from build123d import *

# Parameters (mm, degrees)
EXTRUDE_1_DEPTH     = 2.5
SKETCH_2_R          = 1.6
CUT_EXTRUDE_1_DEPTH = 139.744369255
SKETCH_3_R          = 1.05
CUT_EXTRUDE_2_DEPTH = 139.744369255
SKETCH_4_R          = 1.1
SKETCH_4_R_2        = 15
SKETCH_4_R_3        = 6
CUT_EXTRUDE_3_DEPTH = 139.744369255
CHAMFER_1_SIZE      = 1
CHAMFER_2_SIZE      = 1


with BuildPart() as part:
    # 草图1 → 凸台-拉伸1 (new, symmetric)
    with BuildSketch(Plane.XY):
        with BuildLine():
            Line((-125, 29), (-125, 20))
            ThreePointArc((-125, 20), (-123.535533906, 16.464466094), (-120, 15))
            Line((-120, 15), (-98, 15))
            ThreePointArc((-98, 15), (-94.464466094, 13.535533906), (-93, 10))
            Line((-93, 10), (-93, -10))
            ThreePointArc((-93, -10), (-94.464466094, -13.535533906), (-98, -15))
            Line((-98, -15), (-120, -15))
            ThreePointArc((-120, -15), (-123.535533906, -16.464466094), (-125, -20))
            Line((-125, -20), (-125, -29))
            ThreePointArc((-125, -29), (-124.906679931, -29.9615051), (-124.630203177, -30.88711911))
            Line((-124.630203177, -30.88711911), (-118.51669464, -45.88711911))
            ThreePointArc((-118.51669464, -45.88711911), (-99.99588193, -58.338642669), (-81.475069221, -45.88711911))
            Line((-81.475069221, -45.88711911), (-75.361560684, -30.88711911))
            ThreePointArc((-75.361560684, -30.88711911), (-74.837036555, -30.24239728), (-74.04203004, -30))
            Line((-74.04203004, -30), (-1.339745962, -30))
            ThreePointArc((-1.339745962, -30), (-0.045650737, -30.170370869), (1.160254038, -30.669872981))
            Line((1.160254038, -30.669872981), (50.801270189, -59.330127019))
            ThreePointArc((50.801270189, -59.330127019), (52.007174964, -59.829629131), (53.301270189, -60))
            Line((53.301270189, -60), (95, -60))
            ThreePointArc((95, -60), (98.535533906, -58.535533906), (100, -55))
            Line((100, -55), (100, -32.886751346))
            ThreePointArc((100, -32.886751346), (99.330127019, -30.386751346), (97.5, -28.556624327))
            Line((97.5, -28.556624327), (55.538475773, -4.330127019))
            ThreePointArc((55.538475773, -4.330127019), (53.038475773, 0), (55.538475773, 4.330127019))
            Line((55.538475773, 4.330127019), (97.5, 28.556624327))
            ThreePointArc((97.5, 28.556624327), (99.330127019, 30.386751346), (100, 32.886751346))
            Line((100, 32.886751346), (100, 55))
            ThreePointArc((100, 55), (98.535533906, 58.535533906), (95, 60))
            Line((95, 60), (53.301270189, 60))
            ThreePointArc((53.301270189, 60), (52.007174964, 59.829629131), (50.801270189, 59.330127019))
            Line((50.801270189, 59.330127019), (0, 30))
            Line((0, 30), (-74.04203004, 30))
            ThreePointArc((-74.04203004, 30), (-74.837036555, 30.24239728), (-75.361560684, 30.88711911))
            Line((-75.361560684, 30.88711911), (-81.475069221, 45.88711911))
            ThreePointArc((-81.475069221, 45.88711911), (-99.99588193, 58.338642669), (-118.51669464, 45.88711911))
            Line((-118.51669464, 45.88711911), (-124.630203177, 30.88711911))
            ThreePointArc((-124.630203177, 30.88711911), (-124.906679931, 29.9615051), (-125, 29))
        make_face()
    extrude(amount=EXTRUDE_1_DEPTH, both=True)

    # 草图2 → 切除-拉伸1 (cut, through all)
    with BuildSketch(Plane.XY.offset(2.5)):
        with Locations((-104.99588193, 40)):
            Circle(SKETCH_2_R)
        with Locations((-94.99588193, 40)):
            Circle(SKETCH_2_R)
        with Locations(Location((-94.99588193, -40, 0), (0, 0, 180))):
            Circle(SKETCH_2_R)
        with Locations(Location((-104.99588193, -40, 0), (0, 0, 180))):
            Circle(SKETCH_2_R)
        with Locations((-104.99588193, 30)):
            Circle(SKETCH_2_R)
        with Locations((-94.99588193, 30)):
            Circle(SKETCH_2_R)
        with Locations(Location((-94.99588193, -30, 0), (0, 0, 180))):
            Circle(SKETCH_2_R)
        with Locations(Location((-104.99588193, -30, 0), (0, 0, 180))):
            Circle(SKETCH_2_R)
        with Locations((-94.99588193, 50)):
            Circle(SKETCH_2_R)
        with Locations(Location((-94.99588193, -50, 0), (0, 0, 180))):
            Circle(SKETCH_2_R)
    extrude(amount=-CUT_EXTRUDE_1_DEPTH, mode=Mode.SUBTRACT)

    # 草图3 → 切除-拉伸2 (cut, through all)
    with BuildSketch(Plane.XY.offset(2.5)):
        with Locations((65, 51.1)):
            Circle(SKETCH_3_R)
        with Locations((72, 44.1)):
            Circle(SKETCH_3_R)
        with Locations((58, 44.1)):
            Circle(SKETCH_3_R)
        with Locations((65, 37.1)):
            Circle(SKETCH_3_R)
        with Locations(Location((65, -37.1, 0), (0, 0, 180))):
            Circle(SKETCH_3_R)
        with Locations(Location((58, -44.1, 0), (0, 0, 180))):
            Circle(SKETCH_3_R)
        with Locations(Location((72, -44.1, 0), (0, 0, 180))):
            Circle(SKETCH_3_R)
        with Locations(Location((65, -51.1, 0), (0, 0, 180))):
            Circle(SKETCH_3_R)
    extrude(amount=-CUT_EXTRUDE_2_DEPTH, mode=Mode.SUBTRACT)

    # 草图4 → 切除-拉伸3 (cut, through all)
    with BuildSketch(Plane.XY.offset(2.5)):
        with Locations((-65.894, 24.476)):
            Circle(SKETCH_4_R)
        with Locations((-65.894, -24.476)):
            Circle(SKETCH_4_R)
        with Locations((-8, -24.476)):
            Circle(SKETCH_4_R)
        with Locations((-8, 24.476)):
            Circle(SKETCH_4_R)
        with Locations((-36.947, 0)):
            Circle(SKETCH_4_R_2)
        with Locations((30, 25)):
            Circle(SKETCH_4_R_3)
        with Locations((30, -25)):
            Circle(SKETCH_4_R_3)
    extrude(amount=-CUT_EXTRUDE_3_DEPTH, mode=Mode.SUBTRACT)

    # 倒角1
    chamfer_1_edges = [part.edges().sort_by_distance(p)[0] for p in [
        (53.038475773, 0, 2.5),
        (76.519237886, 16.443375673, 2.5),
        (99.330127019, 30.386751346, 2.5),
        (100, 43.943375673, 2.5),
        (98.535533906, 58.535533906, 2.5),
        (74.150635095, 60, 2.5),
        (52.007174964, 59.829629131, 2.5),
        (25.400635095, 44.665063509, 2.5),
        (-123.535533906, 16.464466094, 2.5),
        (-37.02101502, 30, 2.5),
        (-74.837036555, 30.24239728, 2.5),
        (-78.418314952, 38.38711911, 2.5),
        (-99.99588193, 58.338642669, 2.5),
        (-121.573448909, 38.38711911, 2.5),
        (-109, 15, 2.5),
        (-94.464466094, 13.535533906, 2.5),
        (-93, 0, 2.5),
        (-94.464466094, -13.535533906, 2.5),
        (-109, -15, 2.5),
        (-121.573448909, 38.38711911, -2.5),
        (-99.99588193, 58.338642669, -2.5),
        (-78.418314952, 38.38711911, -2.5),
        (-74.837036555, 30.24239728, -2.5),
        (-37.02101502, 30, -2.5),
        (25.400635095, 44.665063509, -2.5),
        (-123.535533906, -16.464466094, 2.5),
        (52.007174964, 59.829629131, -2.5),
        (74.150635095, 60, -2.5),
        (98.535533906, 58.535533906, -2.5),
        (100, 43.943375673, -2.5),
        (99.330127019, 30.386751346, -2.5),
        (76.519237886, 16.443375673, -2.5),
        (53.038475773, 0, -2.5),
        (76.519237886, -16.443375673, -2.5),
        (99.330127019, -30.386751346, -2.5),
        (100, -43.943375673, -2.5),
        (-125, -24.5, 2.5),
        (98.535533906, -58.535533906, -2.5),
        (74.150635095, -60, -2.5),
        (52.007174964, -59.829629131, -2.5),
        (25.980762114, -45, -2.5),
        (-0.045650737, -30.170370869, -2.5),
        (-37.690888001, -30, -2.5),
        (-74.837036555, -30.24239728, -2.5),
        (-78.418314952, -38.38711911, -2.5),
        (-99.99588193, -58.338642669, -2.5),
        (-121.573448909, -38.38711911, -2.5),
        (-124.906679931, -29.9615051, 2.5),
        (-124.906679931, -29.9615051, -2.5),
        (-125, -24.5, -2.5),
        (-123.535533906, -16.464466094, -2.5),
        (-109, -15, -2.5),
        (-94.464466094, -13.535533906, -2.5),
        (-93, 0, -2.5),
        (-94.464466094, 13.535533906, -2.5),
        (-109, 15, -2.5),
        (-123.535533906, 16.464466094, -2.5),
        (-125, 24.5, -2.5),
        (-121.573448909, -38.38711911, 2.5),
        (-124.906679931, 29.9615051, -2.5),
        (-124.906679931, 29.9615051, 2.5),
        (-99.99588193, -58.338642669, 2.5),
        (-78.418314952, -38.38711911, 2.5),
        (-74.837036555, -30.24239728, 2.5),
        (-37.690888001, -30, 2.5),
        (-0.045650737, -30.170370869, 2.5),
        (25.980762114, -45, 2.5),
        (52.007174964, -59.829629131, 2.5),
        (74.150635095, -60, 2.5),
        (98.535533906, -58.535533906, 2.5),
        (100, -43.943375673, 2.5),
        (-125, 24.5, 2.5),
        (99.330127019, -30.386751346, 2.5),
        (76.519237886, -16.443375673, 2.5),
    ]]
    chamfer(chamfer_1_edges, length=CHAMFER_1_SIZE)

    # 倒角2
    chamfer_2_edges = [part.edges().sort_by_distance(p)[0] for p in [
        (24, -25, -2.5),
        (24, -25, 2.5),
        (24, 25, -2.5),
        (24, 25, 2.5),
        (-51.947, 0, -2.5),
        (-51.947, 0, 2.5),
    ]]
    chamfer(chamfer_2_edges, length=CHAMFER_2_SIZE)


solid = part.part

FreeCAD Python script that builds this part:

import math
import FreeCAD as App
import Part
import Sketcher
Q = App.Units.Quantity


def edges_at(feature, points):
    """Names of the edges that pass closest to the given points."""
    edges = feature.Shape.Edges
    near = lambda p: min(range(len(edges)), key=lambda i: edges[i].distToShape(Part.Vertex(*p))[0])
    return sorted({f"Edge{near(p) + 1}" for p in points})

doc = App.newDocument("Part")
body = doc.addObject("PartDesign::Body", "Body")

sketch1 = doc.addObject("Sketcher::SketchObject", "Sketch")
body.addObject(sketch1)
sketch1.AttachmentSupport = (doc.XY_Plane, [""])
sketch1.MapMode = "FlatFace"
sketch1.addGeometry([
    Part.LineSegment(App.Vector(-125, 29, 0), App.Vector(-125, 20, 0)),
    Part.ArcOfCircle(Part.Circle(App.Vector(-120, 20, 0), App.Vector(0, 0, 1), 5), math.radians(180), math.radians(270)),
    Part.LineSegment(App.Vector(-120, 15, 0), App.Vector(-98, 15, 0)),
    Part.ArcOfCircle(Part.Circle(App.Vector(-98, 10, 0), App.Vector(0, 0, 1), 5), math.radians(0), math.radians(90)),
    Part.LineSegment(App.Vector(-93, 10, 0), App.Vector(-93, -10, 0)),
    Part.ArcOfCircle(Part.Circle(App.Vector(-98, -10, 0), App.Vector(0, 0, 1), 5), math.radians(-90), math.radians(0)),
    Part.LineSegment(App.Vector(-98, -15, 0), App.Vector(-120, -15, 0)),
    Part.ArcOfCircle(Part.Circle(App.Vector(-120, -20, 0), App.Vector(0, 0, 1), 5), math.radians(90), math.radians(180)),
    Part.LineSegment(App.Vector(-125, -20, 0), App.Vector(-125, -29, 0)),
    Part.ArcOfCircle(Part.Circle(App.Vector(-120, -29, 0), App.Vector(0, 0, 1), 5), math.radians(180), math.radians(202.174199)),
    Part.LineSegment(App.Vector(-124.630203, -30.887119, 0), App.Vector(-118.516695, -45.887119, 0)),
    Part.ArcOfCircle(Part.Circle(App.Vector(-99.995882, -38.338643, 0), App.Vector(0, 0, 1), 20), math.radians(-157.825801), math.radians(-22.174199)),
    Part.LineSegment(App.Vector(-81.475069, -45.887119, 0), App.Vector(-75.361561, -30.887119, 0)),
    Part.ArcOfCircle(Part.Circle(App.Vector(-74.04203, -31.424917, 0), App.Vector(0, 0, 1), 1.424917), math.radians(90), math.radians(157.825801)),
    Part.LineSegment(App.Vector(-74.04203, -30, 0), App.Vector(-1.339746, -30, 0)),
    Part.ArcOfCircle(Part.Circle(App.Vector(-1.339746, -35, 0), App.Vector(0, 0, 1), 5), math.radians(60), math.radians(90)),
    Part.LineSegment(App.Vector(1.160254, -30.669873, 0), App.Vector(50.80127, -59.330127, 0)),
    Part.ArcOfCircle(Part.Circle(App.Vector(53.30127, -55, 0), App.Vector(0, 0, 1), 5), math.radians(-120), math.radians(-90)),
    Part.LineSegment(App.Vector(53.30127, -60, 0), App.Vector(95, -60, 0)),
    Part.ArcOfCircle(Part.Circle(App.Vector(95, -55, 0), App.Vector(0, 0, 1), 5), math.radians(-90), math.radians(0)),
    Part.LineSegment(App.Vector(100, -55, 0), App.Vector(100, -32.886751, 0)),
    Part.ArcOfCircle(Part.Circle(App.Vector(95, -32.886751, 0), App.Vector(0, 0, 1), 5), math.radians(0), math.radians(60)),
    Part.LineSegment(App.Vector(97.5, -28.556624, 0), App.Vector(55.538476, -4.330127, 0)),
    Part.ArcOfCircle(Part.Circle(App.Vector(58.038476, 0, 0), App.Vector(0, 0, 1), 5), math.radians(120), math.radians(240)),
    Part.LineSegment(App.Vector(55.538476, 4.330127, 0), App.Vector(97.5, 28.556624, 0)),
    Part.ArcOfCircle(Part.Circle(App.Vector(95, 32.886751, 0), App.Vector(0, 0, 1), 5), math.radians(-60), math.radians(0)),
    Part.LineSegment(App.Vector(100, 32.886751, 0), App.Vector(100, 55, 0)),
    Part.ArcOfCircle(Part.Circle(App.Vector(95, 55, 0), App.Vector(0, 0, 1), 5), math.radians(0), math.radians(90)),
    Part.LineSegment(App.Vector(95, 60, 0), App.Vector(53.30127, 60, 0)),
    Part.ArcOfCircle(Part.Circle(App.Vector(53.30127, 55, 0), App.Vector(0, 0, 1), 5), math.radians(90), math.radians(120)),
    Part.LineSegment(App.Vector(50.80127, 59.330127, 0), App.Vector(0, 30, 0)),
    Part.LineSegment(App.Vector(0, 30, 0), App.Vector(-74.04203, 30, 0)),
    Part.ArcOfCircle(Part.Circle(App.Vector(-74.04203, 31.424917, 0), App.Vector(0, 0, 1), 1.424917), math.radians(-157.825801), math.radians(-90)),
    Part.LineSegment(App.Vector(-75.361561, 30.887119, 0), App.Vector(-81.475069, 45.887119, 0)),
    Part.ArcOfCircle(Part.Circle(App.Vector(-99.995882, 38.338643, 0), App.Vector(0, 0, 1), 20), math.radians(22.174199), math.radians(157.825801)),
    Part.LineSegment(App.Vector(-118.516695, 45.887119, 0), App.Vector(-124.630203, 30.887119, 0)),
    Part.ArcOfCircle(Part.Circle(App.Vector(-120, 29, 0), App.Vector(0, 0, 1), 5), math.radians(157.825801), math.radians(180)),
], False)
sketch1.addConstraint([
    Sketcher.Constraint("Tangent", 0, 2, 1, 1),
    Sketcher.Constraint("Tangent", 1, 2, 2, 1),
    Sketcher.Constraint("Tangent", 2, 2, 3, 2),
    Sketcher.Constraint("Tangent", 3, 1, 4, 1),
    Sketcher.Constraint("Tangent", 4, 2, 5, 2),
    Sketcher.Constraint("Tangent", 5, 1, 6, 1),
    Sketcher.Constraint("Tangent", 6, 2, 7, 1),
    Sketcher.Constraint("Tangent", 7, 2, 8, 1),
    Sketcher.Constraint("Tangent", 8, 2, 9, 1),
    Sketcher.Constraint("Tangent", 9, 2, 10, 1),
    Sketcher.Constraint("Tangent", 10, 2, 11, 1),
    Sketcher.Constraint("Tangent", 11, 2, 12, 1),
    Sketcher.Constraint("Tangent", 12, 2, 13, 2),
    Sketcher.Constraint("Tangent", 13, 1, 14, 1),
    Sketcher.Constraint("Tangent", 14, 2, 15, 2),
    Sketcher.Constraint("Tangent", 15, 1, 16, 1),
    Sketcher.Constraint("Tangent", 16, 2, 17, 1),
    Sketcher.Constraint("Tangent", 17, 2, 18, 1),
    Sketcher.Constraint("Tangent", 18, 2, 19, 1),
    Sketcher.Constraint("Tangent", 19, 2, 20, 1),
    Sketcher.Constraint("Tangent", 20, 2, 21, 1),
    Sketcher.Constraint("Tangent", 21, 2, 22, 1),
    Sketcher.Constraint("Tangent", 22, 2, 23, 2),
    Sketcher.Constraint("Tangent", 23, 1, 24, 1),
    Sketcher.Constraint("Tangent", 24, 2, 25, 1),
    Sketcher.Constraint("Tangent", 25, 2, 26, 1),
    Sketcher.Constraint("Tangent", 26, 2, 27, 1),
    Sketcher.Constraint("Tangent", 27, 2, 28, 1),
    Sketcher.Constraint("Tangent", 28, 2, 29, 1),
    Sketcher.Constraint("Tangent", 29, 2, 30, 1),
    Sketcher.Constraint("Coincident", 30, 2, 31, 1),
    Sketcher.Constraint("Tangent", 31, 2, 32, 2),
    Sketcher.Constraint("Tangent", 32, 1, 33, 1),
    Sketcher.Constraint("Tangent", 33, 2, 34, 1),
    Sketcher.Constraint("Tangent", 34, 2, 35, 1),
    Sketcher.Constraint("Tangent", 35, 2, 36, 1),
    Sketcher.Constraint("Tangent", 36, 2, 0, 1),
    Sketcher.Constraint("Vertical", 0),
    Sketcher.Constraint("Horizontal", 2),
    Sketcher.Constraint("Vertical", 4),
    Sketcher.Constraint("Horizontal", 6),
    Sketcher.Constraint("Vertical", 8),
    Sketcher.Constraint("Horizontal", 14),
    Sketcher.Constraint("Horizontal", 18),
    Sketcher.Constraint("Vertical", 20),
    Sketcher.Constraint("Vertical", 26),
    Sketcher.Constraint("Horizontal", 28),
    Sketcher.Constraint("Horizontal", 31),
    Sketcher.Constraint("Equal", 1, 3),
    Sketcher.Constraint("Equal", 3, 5),
    Sketcher.Constraint("Equal", 5, 7),
    Sketcher.Constraint("Equal", 7, 9),
    Sketcher.Constraint("Equal", 9, 15),
    Sketcher.Constraint("Equal", 15, 17),
    Sketcher.Constraint("Equal", 17, 19),
    Sketcher.Constraint("Equal", 19, 21),
    Sketcher.Constraint("Equal", 21, 23),
    Sketcher.Constraint("Equal", 23, 25),
    Sketcher.Constraint("Equal", 25, 27),
    Sketcher.Constraint("Equal", 27, 29),
    Sketcher.Constraint("Equal", 13, 32),
    Sketcher.Constraint("Equal", 11, 34),
    Sketcher.Constraint("Equal", 29, 36),
    Sketcher.Constraint("Symmetric", 1, 3, 7, 3, -1),
    Sketcher.Constraint("Symmetric", 21, 3, 25, 3, -1),
    Sketcher.Constraint("Symmetric", 17, 3, 29, 3, -1),
    Sketcher.Constraint("Symmetric", 13, 3, 32, 3, -1),
    Sketcher.Constraint("Symmetric", 11, 3, 34, 3, -1),
    Sketcher.Constraint("PointOnObject", 23, 3, -1),
    Sketcher.Constraint("PointOnObject", 30, 2, -2),
    Sketcher.Constraint("Parallel", 16, 22),
    Sketcher.Constraint("Parallel", 24, 30),
    Sketcher.Constraint("Parallel", 10, 33),
    Sketcher.Constraint("Parallel", 12, 35),
    Sketcher.Constraint("Horizontal", 9, 2, 12, 2),
    Sketcher.Constraint("Radius", 1, Q("5 mm")),
    Sketcher.Constraint("Radius", 11, Q("20 mm")),
    Sketcher.Constraint("DistanceX", 2, 1, 2, 2, Q("22 mm")),
    Sketcher.Constraint("DistanceY", 0, 2, 0, 1, Q("9 mm")),
    Sketcher.Constraint("DistanceY", 4, 2, 4, 1, Q("20 mm")),
    Sketcher.Constraint("Angle", 16, Q("-30 deg")),
    Sketcher.Constraint("DistanceX", 1, 3, -1, 1, Q("120 mm")),
    Sketcher.Constraint("DistanceY", 15, 3, -1, 1, Q("35 mm")),
    Sketcher.Constraint("DistanceY", 17, 3, -1, 1, Q("55 mm")),
    Sketcher.Constraint("DistanceX", -1, 1, 19, 3, Q("95 mm")),
    Sketcher.Constraint("DistanceY", 10, 2, 9, 2, Q("15 mm")),
    Sketcher.Constraint("Radius", 13, Q("1.424917 mm")),
    Sketcher.Constraint("DistanceY", 20, 1, 20, 2, Q("22.113249 mm")),
])
pad1 = doc.addObject("PartDesign::Pad", "Pad")
body.addObject(pad1)
pad1.Profile = sketch1
pad1.Length = 5
pad1.Midplane = True

sketch2 = doc.addObject("Sketcher::SketchObject", "Sketch001")
body.addObject(sketch2)
sketch2.AttachmentSupport = (doc.XY_Plane, [""])
sketch2.MapMode = "FlatFace"
sketch2.AttachmentOffset = App.Placement(App.Vector(0, 0, 2.5), App.Rotation())
sketch2.addGeometry([
    Part.Circle(App.Vector(-104.995882, 40, 0), App.Vector(0, 0, 1), 1.6),
    Part.Circle(App.Vector(-94.995882, 40, 0), App.Vector(0, 0, 1), 1.6),
    Part.Circle(App.Vector(-94.995882, -40, 0), App.Vector(0, 0, 1), 1.6),
    Part.Circle(App.Vector(-104.995882, -40, 0), App.Vector(0, 0, 1), 1.6),
    Part.Circle(App.Vector(-104.995882, 30, 0), App.Vector(0, 0, 1), 1.6),
    Part.Circle(App.Vector(-94.995882, 30, 0), App.Vector(0, 0, 1), 1.6),
    Part.Circle(App.Vector(-94.995882, -30, 0), App.Vector(0, 0, 1), 1.6),
    Part.Circle(App.Vector(-104.995882, -30, 0), App.Vector(0, 0, 1), 1.6),
    Part.Circle(App.Vector(-94.995882, 50, 0), App.Vector(0, 0, 1), 1.6),
    Part.Circle(App.Vector(-94.995882, -50, 0), App.Vector(0, 0, 1), 1.6),
], False)
sketch2.addConstraint([
    Sketcher.Constraint("Equal", 0, 1),
    Sketcher.Constraint("Equal", 1, 2),
    Sketcher.Constraint("Equal", 2, 3),
    Sketcher.Constraint("Equal", 3, 4),
    Sketcher.Constraint("Equal", 4, 5),
    Sketcher.Constraint("Equal", 5, 6),
    Sketcher.Constraint("Equal", 6, 7),
    Sketcher.Constraint("Equal", 7, 8),
    Sketcher.Constraint("Equal", 8, 9),
    Sketcher.Constraint("Symmetric", 1, 3, 2, 3, -1),
    Sketcher.Constraint("Symmetric", 0, 3, 3, 3, -1),
    Sketcher.Constraint("Symmetric", 5, 3, 6, 3, -1),
    Sketcher.Constraint("Symmetric", 4, 3, 7, 3, -1),
    Sketcher.Constraint("Symmetric", 8, 3, 9, 3, -1),
    Sketcher.Constraint("Horizontal", 0, 3, 1, 3),
    Sketcher.Constraint("Horizontal", 4, 3, 5, 3),
    Sketcher.Constraint("Vertical", 3, 3, 4, 3),
    Sketcher.Constraint("Vertical", 2, 3, 5, 3),
    Sketcher.Constraint("Vertical", 6, 3, 8, 3),
    Sketcher.Constraint("Diameter", 0, Q("3.2 mm")),
    Sketcher.Constraint("DistanceY", -1, 1, 0, 3, Q("40 mm")),
    Sketcher.Constraint("DistanceY", -1, 1, 4, 3, Q("30 mm")),
    Sketcher.Constraint("DistanceY", -1, 1, 8, 3, Q("50 mm")),
    Sketcher.Constraint("DistanceX", 0, 3, 1, 3, Q("10 mm")),
    Sketcher.Constraint("DistanceX", 0, 3, -1, 1, Q("104.995882 mm")),
])
pocket1 = doc.addObject("PartDesign::Pocket", "Pocket")
body.addObject(pocket1)
pocket1.Profile = sketch2
pocket1.Type = "ThroughAll"

sketch3 = doc.addObject("Sketcher::SketchObject", "Sketch002")
body.addObject(sketch3)
sketch3.AttachmentSupport = (doc.XY_Plane, [""])
sketch3.MapMode = "FlatFace"
sketch3.AttachmentOffset = App.Placement(App.Vector(0, 0, 2.5), App.Rotation())
sketch3.addGeometry([
    Part.Circle(App.Vector(65, 51.1, 0), App.Vector(0, 0, 1), 1.05),
    Part.Circle(App.Vector(72, 44.1, 0), App.Vector(0, 0, 1), 1.05),
    Part.Circle(App.Vector(58, 44.1, 0), App.Vector(0, 0, 1), 1.05),
    Part.Circle(App.Vector(65, 37.1, 0), App.Vector(0, 0, 1), 1.05),
    Part.Circle(App.Vector(65, -37.1, 0), App.Vector(0, 0, 1), 1.05),
    Part.Circle(App.Vector(58, -44.1, 0), App.Vector(0, 0, 1), 1.05),
    Part.Circle(App.Vector(72, -44.1, 0), App.Vector(0, 0, 1), 1.05),
    Part.Circle(App.Vector(65, -51.1, 0), App.Vector(0, 0, 1), 1.05),
], False)
sketch3.addConstraint([
    Sketcher.Constraint("Equal", 0, 1),
    Sketcher.Constraint("Equal", 1, 2),
    Sketcher.Constraint("Equal", 2, 3),
    Sketcher.Constraint("Equal", 3, 4),
    Sketcher.Constraint("Equal", 4, 5),
    Sketcher.Constraint("Equal", 5, 6),
    Sketcher.Constraint("Equal", 6, 7),
    Sketcher.Constraint("Symmetric", 3, 3, 4, 3, -1),
    Sketcher.Constraint("Symmetric", 2, 3, 5, 3, -1),
    Sketcher.Constraint("Symmetric", 1, 3, 6, 3, -1),
    Sketcher.Constraint("Symmetric", 0, 3, 7, 3, -1),
    Sketcher.Constraint("Horizontal", 1, 3, 2, 3),
    Sketcher.Constraint("Vertical", 0, 3, 3, 3),
    Sketcher.Constraint("Diameter", 0, Q("2.1 mm")),
    Sketcher.Constraint("DistanceX", -1, 1, 0, 3, Q("65 mm")),
    Sketcher.Constraint("DistanceX", -1, 1, 1, 3, Q("72 mm")),
    Sketcher.Constraint("DistanceX", -1, 1, 2, 3, Q("58 mm")),
    Sketcher.Constraint("DistanceY", 1, 3, 0, 3, Q("7 mm")),
    Sketcher.Constraint("DistanceY", 3, 3, 1, 3, Q("7 mm")),
    Sketcher.Constraint("DistanceY", -1, 1, 0, 3, Q("51.1 mm")),
])
pocket2 = doc.addObject("PartDesign::Pocket", "Pocket001")
body.addObject(pocket2)
pocket2.Profile = sketch3
pocket2.Type = "ThroughAll"

sketch4 = doc.addObject("Sketcher::SketchObject", "Sketch003")
body.addObject(sketch4)
sketch4.AttachmentSupport = (doc.XY_Plane, [""])
sketch4.MapMode = "FlatFace"
sketch4.AttachmentOffset = App.Placement(App.Vector(0, 0, 2.5), App.Rotation())
sketch4.addGeometry([
    Part.Circle(App.Vector(-65.894, 24.476, 0), App.Vector(0, 0, 1), 1.1),
    Part.Circle(App.Vector(-65.894, -24.476, 0), App.Vector(0, 0, 1), 1.1),
    Part.Circle(App.Vector(-8, -24.476, 0), App.Vector(0, 0, 1), 1.1),
    Part.Circle(App.Vector(-8, 24.476, 0), App.Vector(0, 0, 1), 1.1),
    Part.Circle(App.Vector(-36.947, 0, 0), App.Vector(0, 0, 1), 15),
    Part.Circle(App.Vector(30, 25, 0), App.Vector(0, 0, 1), 6),
    Part.Circle(App.Vector(30, -25, 0), App.Vector(0, 0, 1), 6),
], False)
sketch4.addConstraint([
    Sketcher.Constraint("Equal", 0, 1),
    Sketcher.Constraint("Equal", 1, 2),
    Sketcher.Constraint("Equal", 2, 3),
    Sketcher.Constraint("Equal", 5, 6),
    Sketcher.Constraint("Symmetric", 0, 3, 1, 3, -1),
    Sketcher.Constraint("Symmetric", 2, 3, 3, 3, -1),
    Sketcher.Constraint("Symmetric", 5, 3, 6, 3, -1),
    Sketcher.Constraint("PointOnObject", 4, 3, -1),
    Sketcher.Constraint("Horizontal", 1, 3, 2, 3),
    Sketcher.Constraint("Diameter", 4, Q("30 mm")),
    Sketcher.Constraint("Diameter", 5, Q("12 mm")),
    Sketcher.Constraint("Diameter", 0, Q("2.2 mm")),
    Sketcher.Constraint("DistanceX", 2, 3, -1, 1, Q("8 mm")),
    Sketcher.Constraint("DistanceX", -1, 1, 5, 3, Q("30 mm")),
    Sketcher.Constraint("DistanceY", -1, 1, 5, 3, Q("25 mm")),
    Sketcher.Constraint("DistanceX", 0, 3, -1, 1, Q("65.894 mm")),
    Sketcher.Constraint("DistanceY", -1, 1, 0, 3, Q("24.476 mm")),
    Sketcher.Constraint("DistanceX", 4, 3, -1, 1, Q("36.947 mm")),
])
pocket3 = doc.addObject("PartDesign::Pocket", "Pocket002")
body.addObject(pocket3)
pocket3.Profile = sketch4
pocket3.Type = "ThroughAll"
doc.recompute()

chamfer = doc.addObject("PartDesign::Chamfer", "Chamfer")
body.addObject(chamfer)
chamfer.Base = (pocket3, edges_at(pocket3, [
    (53.038, 0, 2.5),
    (76.519, 16.443, 2.5),
    (99.33, 30.387, 2.5),
    (100, 43.943, 2.5),
    (98.536, 58.536, 2.5),
    (74.151, 60, 2.5),
    (52.007, 59.83, 2.5),
    (25.401, 44.665, 2.5),
    (-123.536, 16.464, 2.5),
    (-37.021, 30, 2.5),
    (-74.837, 30.242, 2.5),
    (-78.418, 38.387, 2.5),
    (-99.996, 58.339, 2.5),
    (-121.573, 38.387, 2.5),
    (-109, 15, 2.5),
    (-94.464, 13.536, 2.5),
    (-93, 0, 2.5),
    (-94.464, -13.536, 2.5),
    (-109, -15, 2.5),
    (-121.573, 38.387, -2.5),
    (-99.996, 58.339, -2.5),
    (-78.418, 38.387, -2.5),
    (-74.837, 30.242, -2.5),
    (-37.021, 30, -2.5),
    (25.401, 44.665, -2.5),
    (-123.536, -16.464, 2.5),
    (52.007, 59.83, -2.5),
    (74.151, 60, -2.5),
    (98.536, 58.536, -2.5),
    (100, 43.943, -2.5),
    (99.33, 30.387, -2.5),
    (76.519, 16.443, -2.5),
    (53.038, 0, -2.5),
    (76.519, -16.443, -2.5),
    (99.33, -30.387, -2.5),
    (100, -43.943, -2.5),
    (-125, -24.5, 2.5),
    (98.536, -58.536, -2.5),
    (74.151, -60, -2.5),
    (52.007, -59.83, -2.5),
    (25.981, -45, -2.5),
    (-0.046, -30.17, -2.5),
    (-37.691, -30, -2.5),
    (-74.837, -30.242, -2.5),
    (-78.418, -38.387, -2.5),
    (-99.996, -58.339, -2.5),
    (-121.573, -38.387, -2.5),
    (-124.907, -29.962, 2.5),
    (-124.907, -29.962, -2.5),
    (-125, -24.5, -2.5),
    (-123.536, -16.464, -2.5),
    (-109, -15, -2.5),
    (-94.464, -13.536, -2.5),
    (-93, 0, -2.5),
    (-94.464, 13.536, -2.5),
    (-109, 15, -2.5),
    (-123.536, 16.464, -2.5),
    (-125, 24.5, -2.5),
    (-121.573, -38.387, 2.5),
    (-124.907, 29.962, -2.5),
    (-124.907, 29.962, 2.5),
    (-99.996, -58.339, 2.5),
    (-78.418, -38.387, 2.5),
    (-74.837, -30.242, 2.5),
    (-37.691, -30, 2.5),
    (-0.046, -30.17, 2.5),
    (25.981, -45, 2.5),
    (52.007, -59.83, 2.5),
    (74.151, -60, 2.5),
    (98.536, -58.536, 2.5),
    (100, -43.943, 2.5),
    (-125, 24.5, 2.5),
    (99.33, -30.387, 2.5),
    (76.519, -16.443, 2.5),
]))
chamfer.Size = 1
doc.recompute()

chamfer2 = doc.addObject("PartDesign::Chamfer", "Chamfer001")
body.addObject(chamfer2)
chamfer2.Base = (chamfer, edges_at(chamfer, [
    (24, -25, -2.5),
    (24, -25, 2.5),
    (24, 25, -2.5),
    (24, 25, 2.5),
    (-51.947, 0, -2.5),
    (-51.947, 0, 2.5),
]))
chamfer2.Size = 1

doc.recompute()
